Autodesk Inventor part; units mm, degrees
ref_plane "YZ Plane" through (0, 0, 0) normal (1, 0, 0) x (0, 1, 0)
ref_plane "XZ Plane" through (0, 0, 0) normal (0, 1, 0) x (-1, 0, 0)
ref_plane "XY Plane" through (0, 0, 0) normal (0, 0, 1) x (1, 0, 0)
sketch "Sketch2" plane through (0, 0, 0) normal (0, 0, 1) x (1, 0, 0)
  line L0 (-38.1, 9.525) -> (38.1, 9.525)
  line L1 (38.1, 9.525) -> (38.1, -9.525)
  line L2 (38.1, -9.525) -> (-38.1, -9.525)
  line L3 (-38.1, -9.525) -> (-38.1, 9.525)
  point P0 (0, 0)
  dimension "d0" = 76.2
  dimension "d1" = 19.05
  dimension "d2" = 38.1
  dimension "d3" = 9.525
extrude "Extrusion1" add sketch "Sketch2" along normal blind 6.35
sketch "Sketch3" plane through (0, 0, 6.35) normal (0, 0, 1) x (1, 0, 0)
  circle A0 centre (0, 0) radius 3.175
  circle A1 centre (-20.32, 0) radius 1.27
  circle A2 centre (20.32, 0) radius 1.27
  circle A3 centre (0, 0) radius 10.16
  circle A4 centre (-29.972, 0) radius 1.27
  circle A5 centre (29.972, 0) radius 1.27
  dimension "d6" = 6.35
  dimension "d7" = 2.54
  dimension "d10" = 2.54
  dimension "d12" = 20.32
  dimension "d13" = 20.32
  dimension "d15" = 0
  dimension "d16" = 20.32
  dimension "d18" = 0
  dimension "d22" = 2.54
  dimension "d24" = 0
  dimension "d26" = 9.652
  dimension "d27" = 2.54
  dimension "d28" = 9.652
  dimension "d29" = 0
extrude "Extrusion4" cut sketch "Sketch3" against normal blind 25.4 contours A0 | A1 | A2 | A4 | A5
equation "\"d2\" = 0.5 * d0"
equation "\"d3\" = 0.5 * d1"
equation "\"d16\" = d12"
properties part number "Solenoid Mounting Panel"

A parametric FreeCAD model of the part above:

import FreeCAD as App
import Part
import Sketcher
from FreeCAD import Vector
Q = App.Units.Quantity


def add_polygon(sketch, points):
    """Adds a closed chain of lines whose ends are joined by coincident constraints."""
    first, n = sketch.GeometryCount, len(points)
    for a, b in zip(points, points[1:] + points[:1]):
        sketch.addGeometry(Part.LineSegment(App.Vector(*a, 0), App.Vector(*b, 0)), False)
    for i in range(n):
        sketch.addConstraint(Sketcher.Constraint("Coincident", first + i, 2, first + (i + 1) % n, 1))

doc = App.newDocument("Part")
body = doc.addObject("PartDesign::Body", "Body")

# Sketch on XY plane
sketch1 = body.newObject("Sketcher::SketchObject", "Sketch")
sketch1.AttachmentSupport = (doc.getObject("XY_Plane"), [""])
sketch1.MapMode = "FlatFace"
add_polygon(sketch1, [(38, 10), (-38, 10), (-38, -10), (38, -10)])  # lines 0-3
sketch1.addConstraint(Sketcher.Constraint("Horizontal", 0))
sketch1.addConstraint(Sketcher.Constraint("Vertical", 1))
sketch1.addConstraint(Sketcher.Constraint("Horizontal", 2))
sketch1.addConstraint(Sketcher.Constraint("Vertical", 3))
sketch1.addConstraint(Sketcher.Constraint("Symmetric", 0, 2, 2, 2, -1, 1))
sketch1.addConstraint(Sketcher.Constraint("DistanceX", 0, 2, 0, 1, Q("3 in")))
sketch1.addConstraint(Sketcher.Constraint("DistanceY", 1, 2, 1, 1, Q("0.75 in")))
pad1 = body.newObject("PartDesign::Pad", "Pad")
pad1.Profile = sketch1
pad1.Length = Q("0.25 in")

# Sketch on XY plane
sketch2 = body.newObject("Sketcher::SketchObject", "Sketch001")
sketch2.AttachmentSupport = (doc.getObject("XY_Plane"), [""])
sketch2.MapMode = "FlatFace"
sketch2.AttachmentOffset = App.Placement(Vector(0, 0, 0.25 * 25.4), App.Rotation())
sketch2.addGeometry(Part.Circle(Vector(0, 0, 0), Vector(0, 0, 1), 3.2), False)
sketch2.addGeometry(Part.Circle(Vector(-20.3, 0, 0), Vector(0, 0, 1), 1.3), False)
sketch2.addGeometry(Part.Circle(Vector(20.3, 0, 0), Vector(0, 0, 1), 1.3), False)
sketch2.addGeometry(Part.Circle(Vector(-30, 0, 0), Vector(0, 0, 1), 1.3), False)
sketch2.addGeometry(Part.Circle(Vector(30, 0, 0), Vector(0, 0, 1), 1.3), False)
sketch2.addConstraint(Sketcher.Constraint("Coincident", 0, 3, -1, 1))
sketch2.addConstraint(Sketcher.Constraint("Equal", 1, 2))
sketch2.addConstraint(Sketcher.Constraint("Equal", 2, 3))
sketch2.addConstraint(Sketcher.Constraint("Equal", 3, 4))
sketch2.addConstraint(Sketcher.Constraint("Symmetric", 1, 3, 2, 3, -1, 1))
sketch2.addConstraint(Sketcher.Constraint("Symmetric", 3, 3, 4, 3, -1, 1))
sketch2.addConstraint(Sketcher.Constraint("PointOnObject", 1, 3, -1))
sketch2.addConstraint(Sketcher.Constraint("PointOnObject", 3, 3, -1))
sketch2.addConstraint(Sketcher.Constraint("Diameter", 1, Q("0.1 in")))
sketch2.addConstraint(Sketcher.Constraint("Diameter", 0, Q("0.25 in")))
sketch2.addConstraint(Sketcher.Constraint("DistanceX", 1, 3, -1, 1, Q("0.8 in")))
sketch2.addConstraint(Sketcher.Constraint("DistanceX", 3, 3, 1, 3, Q("0.38 in")))
pocket1 = body.newObject("PartDesign::Pocket", "Pocket")
pocket1.Profile = sketch2
pocket1.Length = Q("1 in")

doc.recompute()
